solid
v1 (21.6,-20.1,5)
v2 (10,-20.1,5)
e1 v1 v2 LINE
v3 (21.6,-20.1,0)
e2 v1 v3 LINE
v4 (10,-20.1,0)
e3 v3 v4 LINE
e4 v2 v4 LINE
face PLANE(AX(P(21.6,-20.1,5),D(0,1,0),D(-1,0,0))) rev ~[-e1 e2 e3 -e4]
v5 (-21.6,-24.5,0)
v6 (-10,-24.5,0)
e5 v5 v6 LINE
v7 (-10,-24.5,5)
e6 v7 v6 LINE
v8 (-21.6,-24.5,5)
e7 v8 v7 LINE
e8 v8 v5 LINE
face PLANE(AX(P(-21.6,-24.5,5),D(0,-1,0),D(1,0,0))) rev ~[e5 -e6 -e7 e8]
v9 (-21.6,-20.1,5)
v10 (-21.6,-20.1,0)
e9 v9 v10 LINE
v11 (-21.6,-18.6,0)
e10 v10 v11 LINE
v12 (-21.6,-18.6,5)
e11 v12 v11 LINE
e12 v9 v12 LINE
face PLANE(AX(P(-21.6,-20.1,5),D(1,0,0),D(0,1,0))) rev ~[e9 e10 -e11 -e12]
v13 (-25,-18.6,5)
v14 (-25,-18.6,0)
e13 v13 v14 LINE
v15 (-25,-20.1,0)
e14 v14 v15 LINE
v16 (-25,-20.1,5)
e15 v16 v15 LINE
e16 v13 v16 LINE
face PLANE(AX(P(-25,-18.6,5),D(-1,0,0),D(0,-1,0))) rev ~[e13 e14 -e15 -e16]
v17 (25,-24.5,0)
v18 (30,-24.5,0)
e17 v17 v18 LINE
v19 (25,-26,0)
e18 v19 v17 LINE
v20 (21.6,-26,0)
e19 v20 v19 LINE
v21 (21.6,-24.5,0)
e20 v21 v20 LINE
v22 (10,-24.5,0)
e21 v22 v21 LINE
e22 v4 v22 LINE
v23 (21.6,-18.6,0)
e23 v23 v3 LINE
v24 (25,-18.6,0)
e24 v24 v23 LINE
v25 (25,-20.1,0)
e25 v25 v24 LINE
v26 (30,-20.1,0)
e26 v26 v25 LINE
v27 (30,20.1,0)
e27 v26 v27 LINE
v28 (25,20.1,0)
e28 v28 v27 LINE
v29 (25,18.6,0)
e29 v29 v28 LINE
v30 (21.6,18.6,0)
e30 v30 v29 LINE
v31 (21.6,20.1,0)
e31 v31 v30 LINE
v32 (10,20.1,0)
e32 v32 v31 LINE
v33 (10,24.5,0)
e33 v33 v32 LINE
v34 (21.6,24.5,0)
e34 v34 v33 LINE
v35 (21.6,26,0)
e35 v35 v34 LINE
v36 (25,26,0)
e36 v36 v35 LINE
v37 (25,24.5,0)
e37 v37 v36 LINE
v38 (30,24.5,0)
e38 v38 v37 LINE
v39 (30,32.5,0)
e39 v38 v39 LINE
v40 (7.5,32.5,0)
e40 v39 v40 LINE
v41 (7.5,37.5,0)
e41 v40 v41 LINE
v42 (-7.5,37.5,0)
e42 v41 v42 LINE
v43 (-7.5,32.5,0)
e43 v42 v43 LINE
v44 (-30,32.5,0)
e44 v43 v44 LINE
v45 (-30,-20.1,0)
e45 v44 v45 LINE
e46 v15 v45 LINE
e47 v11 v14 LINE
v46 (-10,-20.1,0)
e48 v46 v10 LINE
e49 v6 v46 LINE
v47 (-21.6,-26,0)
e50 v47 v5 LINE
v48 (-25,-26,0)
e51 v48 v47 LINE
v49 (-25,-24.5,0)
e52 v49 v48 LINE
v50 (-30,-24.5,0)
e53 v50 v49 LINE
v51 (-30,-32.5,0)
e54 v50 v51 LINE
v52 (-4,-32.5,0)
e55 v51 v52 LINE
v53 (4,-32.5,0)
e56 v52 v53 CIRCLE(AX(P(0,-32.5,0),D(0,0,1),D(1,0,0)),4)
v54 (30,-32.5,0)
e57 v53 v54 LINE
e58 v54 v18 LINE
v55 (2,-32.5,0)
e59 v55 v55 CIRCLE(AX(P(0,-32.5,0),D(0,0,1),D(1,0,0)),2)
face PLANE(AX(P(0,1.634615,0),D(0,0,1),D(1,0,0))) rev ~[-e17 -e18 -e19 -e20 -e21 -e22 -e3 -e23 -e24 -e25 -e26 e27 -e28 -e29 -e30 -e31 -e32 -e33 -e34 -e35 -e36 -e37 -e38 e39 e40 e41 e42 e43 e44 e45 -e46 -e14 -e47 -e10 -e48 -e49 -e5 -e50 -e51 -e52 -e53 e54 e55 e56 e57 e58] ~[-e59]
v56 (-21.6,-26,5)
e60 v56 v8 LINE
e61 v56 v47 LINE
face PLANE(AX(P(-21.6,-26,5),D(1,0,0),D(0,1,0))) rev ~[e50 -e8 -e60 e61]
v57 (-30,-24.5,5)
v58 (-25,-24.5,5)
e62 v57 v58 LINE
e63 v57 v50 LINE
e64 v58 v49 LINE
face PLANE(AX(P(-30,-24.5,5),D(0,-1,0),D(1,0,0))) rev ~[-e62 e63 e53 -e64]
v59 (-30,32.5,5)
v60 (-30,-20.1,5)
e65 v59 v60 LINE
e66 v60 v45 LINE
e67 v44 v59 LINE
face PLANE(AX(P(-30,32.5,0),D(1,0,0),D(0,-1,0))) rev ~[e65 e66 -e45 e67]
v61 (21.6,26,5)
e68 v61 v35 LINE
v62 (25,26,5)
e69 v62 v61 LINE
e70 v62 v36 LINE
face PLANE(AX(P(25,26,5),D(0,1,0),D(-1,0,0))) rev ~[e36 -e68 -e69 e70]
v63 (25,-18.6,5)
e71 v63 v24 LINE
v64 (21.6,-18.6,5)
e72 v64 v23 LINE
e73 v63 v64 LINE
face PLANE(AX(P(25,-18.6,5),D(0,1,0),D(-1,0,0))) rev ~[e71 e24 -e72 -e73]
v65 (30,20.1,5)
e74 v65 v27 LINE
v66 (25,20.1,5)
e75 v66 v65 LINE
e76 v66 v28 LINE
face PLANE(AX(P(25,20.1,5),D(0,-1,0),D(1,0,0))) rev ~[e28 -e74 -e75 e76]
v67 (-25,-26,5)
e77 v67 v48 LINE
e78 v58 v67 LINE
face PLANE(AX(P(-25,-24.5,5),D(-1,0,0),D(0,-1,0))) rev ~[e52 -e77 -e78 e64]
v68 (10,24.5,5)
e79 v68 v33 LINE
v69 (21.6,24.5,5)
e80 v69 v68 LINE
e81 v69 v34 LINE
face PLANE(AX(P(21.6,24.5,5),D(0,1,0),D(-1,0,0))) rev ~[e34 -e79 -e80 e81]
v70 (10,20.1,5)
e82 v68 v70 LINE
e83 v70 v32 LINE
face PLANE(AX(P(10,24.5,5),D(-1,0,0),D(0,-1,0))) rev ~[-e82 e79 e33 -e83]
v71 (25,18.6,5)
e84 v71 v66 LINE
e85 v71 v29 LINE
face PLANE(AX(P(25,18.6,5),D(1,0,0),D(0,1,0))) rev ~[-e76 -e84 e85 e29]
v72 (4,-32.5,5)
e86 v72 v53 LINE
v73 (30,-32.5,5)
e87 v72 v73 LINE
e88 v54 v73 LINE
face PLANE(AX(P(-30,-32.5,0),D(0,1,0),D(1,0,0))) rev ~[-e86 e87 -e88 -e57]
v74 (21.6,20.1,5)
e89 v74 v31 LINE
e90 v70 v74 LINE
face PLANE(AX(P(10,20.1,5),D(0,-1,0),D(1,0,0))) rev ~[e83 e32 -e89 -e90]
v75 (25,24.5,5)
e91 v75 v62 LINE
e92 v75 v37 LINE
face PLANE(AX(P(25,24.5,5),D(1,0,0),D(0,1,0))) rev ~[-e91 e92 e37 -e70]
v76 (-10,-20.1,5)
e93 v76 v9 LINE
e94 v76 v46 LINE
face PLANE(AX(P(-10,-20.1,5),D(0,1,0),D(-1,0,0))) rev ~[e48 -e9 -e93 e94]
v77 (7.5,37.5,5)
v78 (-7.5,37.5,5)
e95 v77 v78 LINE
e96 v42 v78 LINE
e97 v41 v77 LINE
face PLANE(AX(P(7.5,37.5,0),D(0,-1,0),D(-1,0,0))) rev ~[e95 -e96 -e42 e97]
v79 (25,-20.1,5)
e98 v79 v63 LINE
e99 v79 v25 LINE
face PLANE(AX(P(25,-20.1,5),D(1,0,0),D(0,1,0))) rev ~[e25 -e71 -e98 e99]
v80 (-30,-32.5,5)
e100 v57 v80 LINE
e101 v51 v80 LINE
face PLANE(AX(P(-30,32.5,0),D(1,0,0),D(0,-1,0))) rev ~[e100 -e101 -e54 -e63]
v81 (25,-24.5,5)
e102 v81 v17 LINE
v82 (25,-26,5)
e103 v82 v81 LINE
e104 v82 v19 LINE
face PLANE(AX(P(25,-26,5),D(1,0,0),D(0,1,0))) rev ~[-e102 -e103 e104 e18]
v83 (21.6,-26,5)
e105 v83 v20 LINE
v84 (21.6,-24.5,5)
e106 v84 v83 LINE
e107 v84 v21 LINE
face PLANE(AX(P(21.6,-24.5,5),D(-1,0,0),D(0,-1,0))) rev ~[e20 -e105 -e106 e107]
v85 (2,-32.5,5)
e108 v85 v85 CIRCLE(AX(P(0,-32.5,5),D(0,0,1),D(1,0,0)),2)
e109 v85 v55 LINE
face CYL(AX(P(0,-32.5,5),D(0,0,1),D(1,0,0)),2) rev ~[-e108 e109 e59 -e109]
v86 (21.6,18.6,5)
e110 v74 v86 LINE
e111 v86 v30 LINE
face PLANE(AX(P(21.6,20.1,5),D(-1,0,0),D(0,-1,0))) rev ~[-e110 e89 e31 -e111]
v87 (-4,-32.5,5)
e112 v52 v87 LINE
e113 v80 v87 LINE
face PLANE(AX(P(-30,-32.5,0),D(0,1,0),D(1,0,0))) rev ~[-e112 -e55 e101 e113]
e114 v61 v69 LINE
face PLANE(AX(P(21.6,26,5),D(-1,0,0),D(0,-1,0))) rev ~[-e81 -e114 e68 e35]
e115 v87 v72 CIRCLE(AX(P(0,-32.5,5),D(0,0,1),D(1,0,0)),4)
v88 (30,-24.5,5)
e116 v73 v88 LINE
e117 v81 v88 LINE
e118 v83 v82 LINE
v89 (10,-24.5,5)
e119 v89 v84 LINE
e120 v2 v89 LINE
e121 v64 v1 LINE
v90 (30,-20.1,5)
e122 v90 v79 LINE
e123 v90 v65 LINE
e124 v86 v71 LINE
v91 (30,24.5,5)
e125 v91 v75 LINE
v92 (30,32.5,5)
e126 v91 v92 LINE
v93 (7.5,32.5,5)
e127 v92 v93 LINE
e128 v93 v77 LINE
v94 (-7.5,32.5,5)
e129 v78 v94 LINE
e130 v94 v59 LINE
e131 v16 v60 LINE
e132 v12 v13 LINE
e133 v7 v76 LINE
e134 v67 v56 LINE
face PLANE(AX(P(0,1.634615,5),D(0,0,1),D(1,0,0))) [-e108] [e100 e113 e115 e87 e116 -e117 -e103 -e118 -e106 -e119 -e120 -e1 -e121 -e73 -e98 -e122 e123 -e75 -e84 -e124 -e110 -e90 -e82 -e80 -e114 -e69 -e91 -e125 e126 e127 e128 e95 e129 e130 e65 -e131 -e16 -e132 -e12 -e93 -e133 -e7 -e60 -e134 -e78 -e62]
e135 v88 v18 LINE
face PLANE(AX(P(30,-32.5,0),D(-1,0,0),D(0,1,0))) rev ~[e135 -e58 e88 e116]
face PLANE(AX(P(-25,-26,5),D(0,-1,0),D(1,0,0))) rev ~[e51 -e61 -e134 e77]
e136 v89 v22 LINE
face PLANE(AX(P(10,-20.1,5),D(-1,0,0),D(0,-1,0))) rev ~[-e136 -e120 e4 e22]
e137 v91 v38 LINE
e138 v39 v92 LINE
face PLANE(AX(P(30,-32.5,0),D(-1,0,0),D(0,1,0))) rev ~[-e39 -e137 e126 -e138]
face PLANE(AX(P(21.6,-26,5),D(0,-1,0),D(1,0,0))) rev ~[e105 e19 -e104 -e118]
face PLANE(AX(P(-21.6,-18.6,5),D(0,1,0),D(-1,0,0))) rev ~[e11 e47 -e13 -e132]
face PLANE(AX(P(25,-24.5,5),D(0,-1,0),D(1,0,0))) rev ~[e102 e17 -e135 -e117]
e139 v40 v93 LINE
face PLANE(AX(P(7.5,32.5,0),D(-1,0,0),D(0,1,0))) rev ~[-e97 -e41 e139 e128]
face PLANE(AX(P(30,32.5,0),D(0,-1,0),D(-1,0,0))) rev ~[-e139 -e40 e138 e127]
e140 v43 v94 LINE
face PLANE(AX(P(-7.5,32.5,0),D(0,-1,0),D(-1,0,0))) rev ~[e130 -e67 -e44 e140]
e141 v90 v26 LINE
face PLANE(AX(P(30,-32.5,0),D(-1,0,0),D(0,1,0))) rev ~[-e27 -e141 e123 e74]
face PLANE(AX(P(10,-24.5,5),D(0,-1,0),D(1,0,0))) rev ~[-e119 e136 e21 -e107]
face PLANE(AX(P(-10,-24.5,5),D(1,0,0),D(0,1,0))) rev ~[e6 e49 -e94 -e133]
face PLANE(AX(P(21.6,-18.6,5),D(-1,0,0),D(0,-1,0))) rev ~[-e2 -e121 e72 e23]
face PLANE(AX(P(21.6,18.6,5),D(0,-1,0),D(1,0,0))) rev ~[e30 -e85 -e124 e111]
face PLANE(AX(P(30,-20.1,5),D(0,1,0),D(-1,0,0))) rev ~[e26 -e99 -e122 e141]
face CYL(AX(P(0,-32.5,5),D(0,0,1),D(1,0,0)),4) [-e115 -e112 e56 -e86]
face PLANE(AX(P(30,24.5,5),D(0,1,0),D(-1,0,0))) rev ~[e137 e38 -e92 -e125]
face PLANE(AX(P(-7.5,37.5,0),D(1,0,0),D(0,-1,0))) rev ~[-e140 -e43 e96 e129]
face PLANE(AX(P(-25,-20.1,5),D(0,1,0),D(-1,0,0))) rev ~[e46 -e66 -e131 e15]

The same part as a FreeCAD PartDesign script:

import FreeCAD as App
import Part
import Sketcher

V = App.Vector
Q = App.Units.Quantity

doc = App.newDocument("Part")
body = doc.addObject("PartDesign::Body", "Body")

sketch1 = doc.addObject("Sketcher::SketchObject", "Sketch")
body.addObject(sketch1)
sketch1.AttachmentSupport = (doc.XY_Plane, [""])
sketch1.MapMode = "FlatFace"
sketch1.addGeometry(Part.LineSegment(V(7.5, 32.5, 0), V(7.5, 37.5, 0)), False)
sketch1.addGeometry(Part.LineSegment(V(7.5, 37.5, 0), V(-7.5, 37.5, 0)), False)
sketch1.addGeometry(Part.LineSegment(V(-7.5, 37.5, 0), V(-7.5, 32.5, 0)), False)
sketch1.addGeometry(Part.LineSegment(V(-7.5, 32.5, 0), V(-30, 32.5, 0)), False)
sketch1.addGeometry(Part.LineSegment(V(-30, 32.5, 0), V(-30, -32.5, 0)), False)
sketch1.addGeometry(Part.LineSegment(V(-30, -32.5, 0), V(30, -32.5, 0)), False)
sketch1.addGeometry(Part.LineSegment(V(30, -32.5, 0), V(30, 32.5, 0)), False)
sketch1.addGeometry(Part.LineSegment(V(30, 32.5, 0), V(7.5, 32.5, 0)), False)
sketch1.addConstraint(Sketcher.Constraint("Coincident", 0, 2, 1, 1))
sketch1.addConstraint(Sketcher.Constraint("Coincident", 1, 2, 2, 1))
sketch1.addConstraint(Sketcher.Constraint("Coincident", 2, 2, 3, 1))
sketch1.addConstraint(Sketcher.Constraint("Coincident", 3, 2, 4, 1))
sketch1.addConstraint(Sketcher.Constraint("Coincident", 4, 2, 5, 1))
sketch1.addConstraint(Sketcher.Constraint("Coincident", 5, 2, 6, 1))
sketch1.addConstraint(Sketcher.Constraint("Coincident", 6, 2, 7, 1))
sketch1.addConstraint(Sketcher.Constraint("Coincident", 7, 2, 0, 1))
sketch1.addConstraint(Sketcher.Constraint("Vertical", 0))
sketch1.addConstraint(Sketcher.Constraint("Horizontal", 1))
sketch1.addConstraint(Sketcher.Constraint("Vertical", 2))
sketch1.addConstraint(Sketcher.Constraint("Horizontal", 3))
sketch1.addConstraint(Sketcher.Constraint("Vertical", 4))
sketch1.addConstraint(Sketcher.Constraint("Horizontal", 5))
sketch1.addConstraint(Sketcher.Constraint("Vertical", 6))
sketch1.addConstraint(Sketcher.Constraint("Horizontal", 7))
sketch1.addConstraint(Sketcher.Constraint("Symmetric", 3, 2, 5, 2, -1, 1))
sketch1.addConstraint(Sketcher.Constraint("Symmetric", 2, 2, 7, 2, -2))
sketch1.addConstraint(Sketcher.Constraint("DistanceX", 1, 2, 1, 1, Q("15 mm")))
sketch1.addConstraint(Sketcher.Constraint("DistanceX", 5, 1, 5, 2, Q("60 mm")))
sketch1.addConstraint(Sketcher.Constraint("DistanceY", 0, 1, 0, 2, Q("5 mm")))
sketch1.addConstraint(Sketcher.Constraint("DistanceY", 4, 2, 4, 1, Q("65 mm")))
pad1 = doc.addObject("PartDesign::Pad", "Pad")
body.addObject(pad1)
pad1.Profile = sketch1
pad1.Length = 5

sketch2 = doc.addObject("Sketcher::SketchObject", "Sketch001")
body.addObject(sketch2)
sketch2.AttachmentSupport = (doc.XY_Plane, [""])
sketch2.MapMode = "FlatFace"
sketch2.AttachmentOffset = App.Placement(V(0, 0, 5), App.Rotation())
sketch2.addGeometry(Part.LineSegment(V(30, 24.5, 0), V(25, 24.5, 0)), False)
sketch2.addGeometry(Part.LineSegment(V(25, 24.5, 0), V(25, 26, 0)), False)
sketch2.addGeometry(Part.LineSegment(V(25, 26, 0), V(21.6, 26, 0)), False)
sketch2.addGeometry(Part.LineSegment(V(21.6, 26, 0), V(21.6, 24.5, 0)), False)
sketch2.addGeometry(Part.LineSegment(V(21.6, 24.5, 0), V(10, 24.5, 0)), False)
sketch2.addGeometry(Part.LineSegment(V(10, 24.5, 0), V(10, 20.1, 0)), False)
sketch2.addGeometry(Part.LineSegment(V(10, 20.1, 0), V(21.6, 20.1, 0)), False)
sketch2.addGeometry(Part.LineSegment(V(21.6, 20.1, 0), V(21.6, 18.6, 0)), False)
sketch2.addGeometry(Part.LineSegment(V(21.6, 18.6, 0), V(25, 18.6, 0)), False)
sketch2.addGeometry(Part.LineSegment(V(25, 18.6, 0), V(25, 20.1, 0)), False)
sketch2.addGeometry(Part.LineSegment(V(25, 20.1, 0), V(30, 20.1, 0)), False)
sketch2.addGeometry(Part.LineSegment(V(30, 20.1, 0), V(30, 24.5, 0)), False)
sketch2.addGeometry(Part.LineSegment(V(30, -24.5, 0), V(30, -20.1, 0)), False)
sketch2.addGeometry(Part.LineSegment(V(30, -20.1, 0), V(25, -20.1, 0)), False)
sketch2.addGeometry(Part.LineSegment(V(25, -20.1, 0), V(25, -18.6, 0)), False)
sketch2.addGeometry(Part.LineSegment(V(25, -18.6, 0), V(21.6, -18.6, 0)), False)
sketch2.addGeometry(Part.LineSegment(V(21.6, -18.6, 0), V(21.6, -20.1, 0)), False)
sketch2.addGeometry(Part.LineSegment(V(21.6, -20.1, 0), V(10, -20.1, 0)), False)
sketch2.addGeometry(Part.LineSegment(V(10, -20.1, 0), V(10, -24.5, 0)), False)
sketch2.addGeometry(Part.LineSegment(V(10, -24.5, 0), V(21.6, -24.5, 0)), False)
sketch2.addGeometry(Part.LineSegment(V(21.6, -24.5, 0), V(21.6, -26, 0)), False)
sketch2.addGeometry(Part.LineSegment(V(21.6, -26, 0), V(25, -26, 0)), False)
sketch2.addGeometry(Part.LineSegment(V(25, -26, 0), V(25, -24.5, 0)), False)
sketch2.addGeometry(Part.LineSegment(V(25, -24.5, 0), V(30, -24.5, 0)), False)
sketch2.addGeometry(Part.LineSegment(V(-30, -24.5, 0), V(-25, -24.5, 0)), False)
sketch2.addGeometry(Part.LineSegment(V(-25, -24.5, 0), V(-25, -26, 0)), False)
sketch2.addGeometry(Part.LineSegment(V(-25, -26, 0), V(-21.6, -26, 0)), False)
sketch2.addGeometry(Part.LineSegment(V(-21.6, -26, 0), V(-21.6, -24.5, 0)), False)
sketch2.addGeometry(Part.LineSegment(V(-21.6, -24.5, 0), V(-10, -24.5, 0)), False)
sketch2.addGeometry(Part.LineSegment(V(-10, -24.5, 0), V(-10, -20.1, 0)), False)
sketch2.addGeometry(Part.LineSegment(V(-10, -20.1, 0), V(-21.6, -20.1, 0)), False)
sketch2.addGeometry(Part.LineSegment(V(-21.6, -20.1, 0), V(-21.6, -18.6, 0)), False)
sketch2.addGeometry(Part.LineSegment(V(-21.6, -18.6, 0), V(-25, -18.6, 0)), False)
sketch2.addGeometry(Part.LineSegment(V(-25, -18.6, 0), V(-25, -20.1, 0)), False)
sketch2.addGeometry(Part.LineSegment(V(-25, -20.1, 0), V(-30, -20.1, 0)), False)
sketch2.addGeometry(Part.LineSegment(V(-30, -20.1, 0), V(-30, -24.5, 0)), False)
sketch2.addConstraint(Sketcher.Constraint("Coincident", 0, 2, 1, 1))
sketch2.addConstraint(Sketcher.Constraint("Coincident", 1, 2, 2, 1))
sketch2.addConstraint(Sketcher.Constraint("Coincident", 2, 2, 3, 1))
sketch2.addConstraint(Sketcher.Constraint("Coincident", 3, 2, 4, 1))
sketch2.addConstraint(Sketcher.Constraint("Coincident", 4, 2, 5, 1))
sketch2.addConstraint(Sketcher.Constraint("Coincident", 5, 2, 6, 1))
sketch2.addConstraint(Sketcher.Constraint("Coincident", 6, 2, 7, 1))
sketch2.addConstraint(Sketcher.Constraint("Coincident", 7, 2, 8, 1))
sketch2.addConstraint(Sketcher.Constraint("Coincident", 8, 2, 9, 1))
sketch2.addConstraint(Sketcher.Constraint("Coincident", 9, 2, 10, 1))
sketch2.addConstraint(Sketcher.Constraint("Coincident", 10, 2, 11, 1))
sketch2.addConstraint(Sketcher.Constraint("Coincident", 11, 2, 0, 1))
sketch2.addConstraint(Sketcher.Constraint("Coincident", 12, 2, 13, 1))
sketch2.addConstraint(Sketcher.Constraint("Coincident", 13, 2, 14, 1))
sketch2.addConstraint(Sketcher.Constraint("Coincident", 14, 2, 15, 1))
sketch2.addConstraint(Sketcher.Constraint("Coincident", 15, 2, 16, 1))
sketch2.addConstraint(Sketcher.Constraint("Coincident", 16, 2, 17, 1))
sketch2.addConstraint(Sketcher.Constraint("Coincident", 17, 2, 18, 1))
sketch2.addConstraint(Sketcher.Constraint("Coincident", 18, 2, 19, 1))
sketch2.addConstraint(Sketcher.Constraint("Coincident", 19, 2, 20, 1))
sketch2.addConstraint(Sketcher.Constraint("Coincident", 20, 2, 21, 1))
sketch2.addConstraint(Sketcher.Constraint("Coincident", 21, 2, 22, 1))
sketch2.addConstraint(Sketcher.Constraint("Coincident", 22, 2, 23, 1))
sketch2.addConstraint(Sketcher.Constraint("Coincident", 23, 2, 12, 1))
sketch2.addConstraint(Sketcher.Constraint("Coincident", 24, 2, 25, 1))
sketch2.addConstraint(Sketcher.Constraint("Coincident", 25, 2, 26, 1))
sketch2.addConstraint(Sketcher.Constraint("Coincident", 26, 2, 27, 1))
sketch2.addConstraint(Sketcher.Constraint("Coincident", 27, 2, 28, 1))
sketch2.addConstraint(Sketcher.Constraint("Coincident", 28, 2, 29, 1))
sketch2.addConstraint(Sketcher.Constraint("Coincident", 29, 2, 30, 1))
sketch2.addConstraint(Sketcher.Constraint("Coincident", 30, 2, 31, 1))
sketch2.addConstraint(Sketcher.Constraint("Coincident", 31, 2, 32, 1))
sketch2.addConstraint(Sketcher.Constraint("Coincident", 32, 2, 33, 1))
sketch2.addConstraint(Sketcher.Constraint("Coincident", 33, 2, 34, 1))
sketch2.addConstraint(Sketcher.Constraint("Coincident", 34, 2, 35, 1))
sketch2.addConstraint(Sketcher.Constraint("Coincident", 35, 2, 24, 1))
sketch2.addConstraint(Sketcher.Constraint("Horizontal", 0))
sketch2.addConstraint(Sketcher.Constraint("Vertical", 1))
sketch2.addConstraint(Sketcher.Constraint("Horizontal", 2))
sketch2.addConstraint(Sketcher.Constraint("Vertical", 3))
sketch2.addConstraint(Sketcher.Constraint("Horizontal", 4))
sketch2.addConstraint(Sketcher.Constraint("Vertical", 5))
sketch2.addConstraint(Sketcher.Constraint("Horizontal", 6))
sketch2.addConstraint(Sketcher.Constraint("Vertical", 7))
sketch2.addConstraint(Sketcher.Constraint("Horizontal", 8))
sketch2.addConstraint(Sketcher.Constraint("Vertical", 9))
sketch2.addConstraint(Sketcher.Constraint("Horizontal", 10))
sketch2.addConstraint(Sketcher.Constraint("Vertical", 11))
sketch2.addConstraint(Sketcher.Constraint("Vertical", 12))
sketch2.addConstraint(Sketcher.Constraint("Horizontal", 13))
sketch2.addConstraint(Sketcher.Constraint("Vertical", 14))
sketch2.addConstraint(Sketcher.Constraint("Horizontal", 15))
sketch2.addConstraint(Sketcher.Constraint("Vertical", 16))
sketch2.addConstraint(Sketcher.Constraint("Horizontal", 17))
sketch2.addConstraint(Sketcher.Constraint("Vertical", 18))
sketch2.addConstraint(Sketcher.Constraint("Horizontal", 19))
sketch2.addConstraint(Sketcher.Constraint("Vertical", 20))
sketch2.addConstraint(Sketcher.Constraint("Horizontal", 21))
sketch2.addConstraint(Sketcher.Constraint("Vertical", 22))
sketch2.addConstraint(Sketcher.Constraint("Horizontal", 23))
sketch2.addConstraint(Sketcher.Constraint("Horizontal", 24))
sketch2.addConstraint(Sketcher.Constraint("Vertical", 25))
sketch2.addConstraint(Sketcher.Constraint("Horizontal", 26))
sketch2.addConstraint(Sketcher.Constraint("Vertical", 27))
sketch2.addConstraint(Sketcher.Constraint("Horizontal", 28))
sketch2.addConstraint(Sketcher.Constraint("Vertical", 29))
sketch2.addConstraint(Sketcher.Constraint("Horizontal", 30))
sketch2.addConstraint(Sketcher.Constraint("Vertical", 31))
sketch2.addConstraint(Sketcher.Constraint("Horizontal", 32))
sketch2.addConstraint(Sketcher.Constraint("Vertical", 33))
sketch2.addConstraint(Sketcher.Constraint("Horizontal", 34))
sketch2.addConstraint(Sketcher.Constraint("Vertical", 35))
sketch2.addConstraint(Sketcher.Constraint("Symmetric", 0, 2, 24, 2, -1, 1))
sketch2.addConstraint(Sketcher.Constraint("Symmetric", 2, 2, 26, 2, -1, 1))
sketch2.addConstraint(Sketcher.Constraint("Symmetric", 4, 2, 28, 2, -1, 1))
sketch2.addConstraint(Sketcher.Constraint("Symmetric", 6, 2, 30, 2, -1, 1))
sketch2.addConstraint(Sketcher.Constraint("Symmetric", 8, 2, 32, 2, -1, 1))
sketch2.addConstraint(Sketcher.Constraint("Symmetric", 10, 2, 34, 2, -1, 1))
sketch2.addConstraint(Sketcher.Constraint("Symmetric", 22, 2, 24, 2, -2))
sketch2.addConstraint(Sketcher.Constraint("Symmetric", 20, 2, 26, 2, -2))
sketch2.addConstraint(Sketcher.Constraint("Symmetric", 18, 2, 28, 2, -2))
sketch2.addConstraint(Sketcher.Constraint("Symmetric", 16, 2, 30, 2, -2))
sketch2.addConstraint(Sketcher.Constraint("Symmetric", 14, 2, 32, 2, -2))
sketch2.addConstraint(Sketcher.Constraint("Symmetric", 12, 2, 34, 2, -2))
sketch2.addConstraint(Sketcher.Constraint("Horizontal", 0, 2, 3, 2))
sketch2.addConstraint(Sketcher.Constraint("Horizontal", 6, 2, 9, 2))
sketch2.addConstraint(Sketcher.Constraint("Vertical", 3, 2, 6, 2))
sketch2.addConstraint(Sketcher.Constraint("Vertical", 1, 2, 8, 2))
sketch2.addConstraint(Sketcher.Constraint("Equal", 3, 7))
sketch2.addConstraint(Sketcher.Constraint("DistanceX", 0, 2, 0, 1, Q("5 mm")))
sketch2.addConstraint(Sketcher.Constraint("DistanceX", 2, 2, 2, 1, Q("3.4 mm")))
sketch2.addConstraint(Sketcher.Constraint("DistanceX", 4, 2, 4, 1, Q("11.6 mm")))
sketch2.addConstraint(Sketcher.Constraint("DistanceY", 1, 1, 1, 2, Q("1.5 mm")))
sketch2.addConstraint(Sketcher.Constraint("DistanceY", 5, 2, 5, 1, Q("4.4 mm")))
sketch2.addConstraint(Sketcher.Constraint("DistanceX", -1, 1, 0, 2, Q("25 mm")))
sketch2.addConstraint(Sketcher.Constraint("DistanceY", -1, 1, 1, 2, Q("26 mm")))
pocket1 = doc.addObject("PartDesign::Pocket", "Pocket")
body.addObject(pocket1)
pocket1.Profile = sketch2
pocket1.Length = 5

sketch3 = doc.addObject("Sketcher::SketchObject", "Sketch002")
body.addObject(sketch3)
sketch3.AttachmentSupport = (doc.XY_Plane, [""])
sketch3.MapMode = "FlatFace"
sketch3.AttachmentOffset = App.Placement(V(0, 0, 5), App.Rotation())
sketch3.addGeometry(Part.Circle(V(0, -32.5, 0), V(0, 0, 1), 4), False)
sketch3.addGeometry(Part.Circle(V(0, -32.5, 0), V(0, 0, 1), 2), False)
sketch3.addConstraint(Sketcher.Constraint("Coincident", 1, 3, 0, 3))
sketch3.addConstraint(Sketcher.Constraint("PointOnObject", 0, 3, -2))
sketch3.addConstraint(Sketcher.Constraint("Diameter", 0, Q("8 mm")))
sketch3.addConstraint(Sketcher.Constraint("Diameter", 1, Q("4 mm")))
sketch3.addConstraint(Sketcher.Constraint("DistanceY", 0, 3, -1, 1, Q("32.5 mm")))
pad2 = doc.addObject("PartDesign::Pad", "Pad001")
body.addObject(pad2)
pad2.Profile = sketch3
pad2.Length = 5
pad2.Reversed = True

sketch4 = doc.addObject("Sketcher::SketchObject", "Sketch003")
body.addObject(sketch4)
sketch4.AttachmentSupport = (doc.XY_Plane, [""])
sketch4.MapMode = "FlatFace"
sketch4.AttachmentOffset = App.Placement(V(0, 0, 5), App.Rotation())
sketch4.addGeometry(Part.Circle(V(0, -32.5, 0), V(0, 0, 1), 2), False)
sketch4.addConstraint(Sketcher.Constraint("PointOnObject", 0, 3, -2))
sketch4.addConstraint(Sketcher.Constraint("Diameter", 0, Q("4 mm")))
sketch4.addConstraint(Sketcher.Constraint("DistanceY", 0, 3, -1, 1, Q("32.5 mm")))
pocket2 = doc.addObject("PartDesign::Pocket", "Pocket001")
body.addObject(pocket2)
pocket2.Profile = sketch4
pocket2.Length = 5

doc.recompute()
